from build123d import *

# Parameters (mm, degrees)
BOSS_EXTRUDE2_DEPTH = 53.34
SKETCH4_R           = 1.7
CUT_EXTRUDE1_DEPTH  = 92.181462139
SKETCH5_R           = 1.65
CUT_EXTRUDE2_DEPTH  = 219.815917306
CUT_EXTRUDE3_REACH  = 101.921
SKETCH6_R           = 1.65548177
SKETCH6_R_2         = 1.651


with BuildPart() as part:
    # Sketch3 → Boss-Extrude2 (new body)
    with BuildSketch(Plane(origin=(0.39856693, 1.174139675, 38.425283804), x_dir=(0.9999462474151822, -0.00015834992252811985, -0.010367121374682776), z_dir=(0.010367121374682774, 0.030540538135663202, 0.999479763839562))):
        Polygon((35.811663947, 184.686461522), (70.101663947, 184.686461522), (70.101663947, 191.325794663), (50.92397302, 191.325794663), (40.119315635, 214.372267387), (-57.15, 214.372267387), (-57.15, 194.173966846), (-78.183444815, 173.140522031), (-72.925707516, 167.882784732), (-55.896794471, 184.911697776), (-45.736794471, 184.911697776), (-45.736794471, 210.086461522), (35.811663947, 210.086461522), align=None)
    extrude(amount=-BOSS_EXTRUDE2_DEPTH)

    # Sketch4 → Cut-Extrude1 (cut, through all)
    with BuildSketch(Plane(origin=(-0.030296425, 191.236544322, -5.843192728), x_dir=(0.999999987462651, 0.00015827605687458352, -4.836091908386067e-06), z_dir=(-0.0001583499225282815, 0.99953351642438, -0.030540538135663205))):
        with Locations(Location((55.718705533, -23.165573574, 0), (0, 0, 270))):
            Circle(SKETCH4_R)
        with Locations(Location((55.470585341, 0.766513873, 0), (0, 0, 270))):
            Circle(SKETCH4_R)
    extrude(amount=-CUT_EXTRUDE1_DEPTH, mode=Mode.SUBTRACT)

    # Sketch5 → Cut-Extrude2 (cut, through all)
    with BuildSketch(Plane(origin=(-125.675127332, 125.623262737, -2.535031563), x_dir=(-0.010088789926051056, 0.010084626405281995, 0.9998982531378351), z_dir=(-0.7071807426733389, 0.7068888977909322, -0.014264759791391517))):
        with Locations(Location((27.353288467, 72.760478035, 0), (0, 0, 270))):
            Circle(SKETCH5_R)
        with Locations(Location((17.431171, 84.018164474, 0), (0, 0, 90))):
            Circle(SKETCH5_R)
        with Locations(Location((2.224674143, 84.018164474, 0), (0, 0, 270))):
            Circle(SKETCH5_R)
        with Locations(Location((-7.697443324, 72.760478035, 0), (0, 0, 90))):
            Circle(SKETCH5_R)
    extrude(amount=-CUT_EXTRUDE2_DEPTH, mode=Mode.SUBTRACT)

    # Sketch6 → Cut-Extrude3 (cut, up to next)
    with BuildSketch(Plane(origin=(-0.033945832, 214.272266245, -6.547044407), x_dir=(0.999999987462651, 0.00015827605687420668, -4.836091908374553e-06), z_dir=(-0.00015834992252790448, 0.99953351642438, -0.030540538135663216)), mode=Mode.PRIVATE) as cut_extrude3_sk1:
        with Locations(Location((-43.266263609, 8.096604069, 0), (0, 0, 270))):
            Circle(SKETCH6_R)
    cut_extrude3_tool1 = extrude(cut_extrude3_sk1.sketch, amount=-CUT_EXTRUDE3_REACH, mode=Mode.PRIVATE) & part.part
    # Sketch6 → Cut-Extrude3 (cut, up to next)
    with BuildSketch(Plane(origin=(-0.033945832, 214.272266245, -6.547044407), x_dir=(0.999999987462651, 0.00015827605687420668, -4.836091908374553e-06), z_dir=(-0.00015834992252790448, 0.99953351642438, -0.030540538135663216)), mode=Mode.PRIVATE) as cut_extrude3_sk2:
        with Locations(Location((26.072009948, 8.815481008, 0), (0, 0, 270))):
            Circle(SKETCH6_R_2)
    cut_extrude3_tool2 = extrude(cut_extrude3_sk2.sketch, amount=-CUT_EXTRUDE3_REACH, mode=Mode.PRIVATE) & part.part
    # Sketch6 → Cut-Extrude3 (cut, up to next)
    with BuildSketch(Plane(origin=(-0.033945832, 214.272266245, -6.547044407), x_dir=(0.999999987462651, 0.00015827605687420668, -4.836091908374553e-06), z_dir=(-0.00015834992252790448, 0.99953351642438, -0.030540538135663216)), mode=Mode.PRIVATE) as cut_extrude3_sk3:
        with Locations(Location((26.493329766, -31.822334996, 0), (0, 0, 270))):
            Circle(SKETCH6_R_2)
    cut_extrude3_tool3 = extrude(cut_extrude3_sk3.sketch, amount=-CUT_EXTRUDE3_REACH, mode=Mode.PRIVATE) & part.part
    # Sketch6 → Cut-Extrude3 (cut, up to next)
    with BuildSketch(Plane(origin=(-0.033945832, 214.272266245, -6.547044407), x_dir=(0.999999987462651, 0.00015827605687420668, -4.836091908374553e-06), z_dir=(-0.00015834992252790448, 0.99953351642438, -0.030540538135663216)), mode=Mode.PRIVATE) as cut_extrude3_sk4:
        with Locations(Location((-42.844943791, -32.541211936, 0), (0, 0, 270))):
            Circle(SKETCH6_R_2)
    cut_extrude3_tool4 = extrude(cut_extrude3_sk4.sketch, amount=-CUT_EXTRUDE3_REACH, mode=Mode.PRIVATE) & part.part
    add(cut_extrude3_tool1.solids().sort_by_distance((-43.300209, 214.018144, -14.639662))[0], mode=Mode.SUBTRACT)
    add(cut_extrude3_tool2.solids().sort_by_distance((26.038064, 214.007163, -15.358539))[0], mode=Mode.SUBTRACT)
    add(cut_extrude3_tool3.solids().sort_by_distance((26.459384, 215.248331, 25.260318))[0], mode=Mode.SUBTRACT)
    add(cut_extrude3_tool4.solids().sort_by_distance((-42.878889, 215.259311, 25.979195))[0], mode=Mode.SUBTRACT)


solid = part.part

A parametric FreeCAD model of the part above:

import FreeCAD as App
import Part
import Sketcher
from FreeCAD import Vector
Q = App.Units.Quantity


def add_polygon(sketch, points):
    """Adds a closed chain of lines whose ends are joined by coincident constraints."""
    first, n = sketch.GeometryCount, len(points)
    for a, b in zip(points, points[1:] + points[:1]):
        sketch.addGeometry(Part.LineSegment(App.Vector(*a, 0), App.Vector(*b, 0)), False)
    for i in range(n):
        sketch.addConstraint(Sketcher.Constraint("Coincident", first + i, 2, first + (i + 1) % n, 1))

doc = App.newDocument("Part")
params = doc.addObject("Spreadsheet::Sheet", "Params")
for row, (alias, value) in enumerate([
    ("sketch1_height", "1 in"),
    ("sketch1_width", "0.4 in"),
    ("sketch1_width2", "1.35 in"),
    ("pad1_length", "2.1 in"),
    ("sketch5_diameter", "0.13 in"),
    ("sketch6_diameter", "0.13 in"),
    ("sketch7_diameter", "0.13 in"),
], start=1):
    params.set(f"A{row}", alias)
    params.set(f"B{row}", "=" + value)
    params.setAlias(f"B{row}", alias)

body = doc.addObject("PartDesign::Body", "Body")

sketch1 = doc.addObject("Sketcher::SketchObject", "Sketch")
body.addObject(sketch1)
sketch1.Placement = App.Placement(Vector(0.398567, 1.17414, 38.425284), App.Rotation(Vector(0.999946247, -0.00015835, -0.010367121), Vector(-0.00015835, 0.999533516, -0.030540538), Vector(0.010367121, 0.030540538, 0.999479764), "ZXY"))
add_polygon(sketch1, [(36, 185), (70, 185), (70, 191), (51, 191), (40, 214), (-57, 214), (-57, 194), (-78, 173), (-73, 168), (-56, 185), (-46, 185), (-46, 210), (36, 210)])
sketch1.addConstraint([
    Sketcher.Constraint("Horizontal", 0),
    Sketcher.Constraint("Vertical", 1),
    Sketcher.Constraint("Horizontal", 2),
    Sketcher.Constraint("Horizontal", 4),
    Sketcher.Constraint("Vertical", 5),
    Sketcher.Constraint("Horizontal", 9),
    Sketcher.Constraint("Vertical", 10),
    Sketcher.Constraint("Horizontal", 11),
    Sketcher.Constraint("Vertical", 12),
    Sketcher.Constraint("Perpendicular", 6, 7),
    Sketcher.Constraint("Perpendicular", 7, 8),
    Sketcher.Constraint("DistanceY", 12, 2, 12, 1, Q("1 in")),
    Sketcher.Constraint("DistanceX", 9, 1, 9, 2, Q("0.4 in")),
    Sketcher.Constraint("Angle", 6, Q("-135 deg")),
    Sketcher.Constraint("DistanceX", 0, 1, 0, 2, Q("1.35 in")),
    Sketcher.Constraint("DistanceX", 4, 2, -1, 1, Q("2.25 in")),
    Sketcher.Constraint("DistanceY", 5, 2, 5, 1, 20.198301),
    Sketcher.Constraint("DistanceX", 2, 2, 2, 1, 19.177691),
    Sketcher.Constraint("DistanceX", 11, 1, 11, 2, 81.548458),
    Sketcher.Constraint("Distance", 8, 24.08252),
    Sketcher.Constraint("DistanceX", 4, 2, 4, 1, 97.269316),
    Sketcher.Constraint("DistanceY", 1, 1, 1, 2, 6.639333),
    Sketcher.Constraint("DistanceY", 10, 1, 10, 2, 25.174764),
    Sketcher.Constraint("DistanceY", -1, 1, 0, 2, 184.686461),
    Sketcher.Constraint("DistanceY", -1, 1, 6, 2, 173.140522),
    Sketcher.Constraint("DistanceX", 3, 2, 1, 2, 29.982348),
])
sketch1.setExpression("Constraints[24]", "Params.sketch1_height")
sketch1.setExpression("Constraints[25]", "Params.sketch1_width")
sketch1.setExpression("Constraints[27]", "Params.sketch1_width2")
pad1 = doc.addObject("PartDesign::Pad", "Pad")
body.addObject(pad1)
pad1.Profile = sketch1
pad1.setExpression("Length", "Params.pad1_length")
pad1.Reversed = True

sketch2 = doc.addObject("Sketcher::SketchObject", "Sketch001")
body.addObject(sketch2)
sketch2.Placement = App.Placement(Vector(-0.030296, 191.236544, -5.843193), App.Rotation(Vector(0.999999987, 0.000158276, -0.000004836), Vector(0, -0.030540538, -0.999533528), Vector(-0.00015835, 0.999533516, -0.030540538), "ZXY"))
sketch2.addGeometry([
    Part.Circle(Vector(55.7, -23.2, 0), Vector(0, 0, 1), 1.7),
    Part.Circle(Vector(55.5, 0.8, 0), Vector(0, 0, 1), 1.7),
], False)
sketch2.addConstraint([
    Sketcher.Constraint("Equal", 0, 1),
    Sketcher.Constraint("Diameter", 0, 3.4),
    Sketcher.Constraint("DistanceX", 1, 3, 0, 3, 0.24812),
    Sketcher.Constraint("DistanceX", -1, 1, 0, 3, 55.718705),
    Sketcher.Constraint("DistanceY", 0, 3, -1, 1, 23.165574),
    Sketcher.Constraint("DistanceY", -1, 1, 1, 3, 0.766514),
])
pocket1 = doc.addObject("PartDesign::Pocket", "Pocket")
body.addObject(pocket1)
pocket1.Profile = sketch2
pocket1.Type = "ThroughAll"

sketch3 = doc.addObject("Sketcher::SketchObject", "Sketch002")
body.addObject(sketch3)
sketch3.Placement = App.Placement(Vector(-125.675127, 125.623263, -2.535032), App.Rotation(Vector(-0.01008879, 0.010084626, 0.999898253), Vector(0.706960829, 0.707252704, 0), Vector(-0.707180743, 0.706888898, -0.01426476), "ZXY"))
sketch3.addGeometry([
    Part.Circle(Vector(27.4, 72.8, 0), Vector(0, 0, 1), 1.6),
    Part.Circle(Vector(17.4, 84, 0), Vector(0, 0, 1), 1.6),
    Part.Circle(Vector(2.2, 84, 0), Vector(0, 0, 1), 1.6),
    Part.Circle(Vector(-7.7, 72.8, 0), Vector(0, 0, 1), 1.6),
], False)
sketch3.addConstraint([
    Sketcher.Constraint("Equal", 0, 1),
    Sketcher.Constraint("Equal", 1, 2),
    Sketcher.Constraint("Equal", 2, 3),
    Sketcher.Constraint("Horizontal", 1, 3, 2, 3),
    Sketcher.Constraint("Horizontal", 0, 3, 3, 3),
    Sketcher.Constraint("Diameter", 0, 3.3),
    Sketcher.Constraint("DistanceX", -1, 1, 0, 3, 27.353288),
    Sketcher.Constraint("DistanceY", -1, 1, 0, 3, 72.760478),
    Sketcher.Constraint("DistanceX", -1, 1, 1, 3, 17.431171),
    Sketcher.Constraint("DistanceX", 3, 3, 0, 3, 35.050732),
    Sketcher.Constraint("DistanceY", -1, 1, 1, 3, 84.018165),
    Sketcher.Constraint("DistanceX", -1, 1, 2, 3, 2.224674),
])
pocket2 = doc.addObject("PartDesign::Pocket", "Pocket001")
body.addObject(pocket2)
pocket2.Profile = sketch3
pocket2.Type = "ThroughAll"

sketch4 = doc.addObject("Sketcher::SketchObject", "Sketch003")
body.addObject(sketch4)
sketch4.Placement = App.Placement(Vector(-0.033946, 214.272266, -6.547044), App.Rotation(Vector(0.999999987, 0.000158276, -0.000004836), Vector(0, -0.030540538, -0.999533528), Vector(-0.00015835, 0.999533516, -0.030540538), "ZXY"))
sketch4.addGeometry(Part.Circle(Vector(-43.3, 8.1, 0), Vector(0, 0, 1), 1.7), False)
sketch4.addConstraint([
    Sketcher.Constraint("Diameter", 0, 3.310964),
    Sketcher.Constraint("DistanceX", 0, 3, -1, 1, 43.266264),
    Sketcher.Constraint("DistanceY", -1, 1, 0, 3, 8.096604),
])
pocket3 = doc.addObject("PartDesign::Pocket", "Pocket002")
body.addObject(pocket3)
pocket3.Profile = sketch4
pocket3.Type = "UpToFirst"

sketch5 = doc.addObject("Sketcher::SketchObject", "Sketch004")
body.addObject(sketch5)
sketch5.Placement = App.Placement(Vector(-0.033946, 214.272266, -6.547044), App.Rotation(Vector(0.999999987, 0.000158276, -0.000004836), Vector(0, -0.030540538, -0.999533528), Vector(-0.00015835, 0.999533516, -0.030540538), "ZXY"))
sketch5.addGeometry(Part.Circle(Vector(26.1, 8.8, 0), Vector(0, 0, 1), 1.7), False)
sketch5.addConstraint([
    Sketcher.Constraint("Diameter", 0, Q("0.13 in")),
    Sketcher.Constraint("DistanceX", -1, 1, 0, 3, 26.07201),
    Sketcher.Constraint("DistanceY", -1, 1, 0, 3, 8.815481),
])
sketch5.setExpression("Constraints[0]", "Params.sketch5_diameter")
pocket4 = doc.addObject("PartDesign::Pocket", "Pocket003")
body.addObject(pocket4)
pocket4.Profile = sketch5
pocket4.Type = "UpToFirst"

sketch6 = doc.addObject("Sketcher::SketchObject", "Sketch005")
body.addObject(sketch6)
sketch6.Placement = App.Placement(Vector(-0.033946, 214.272266, -6.547044), App.Rotation(Vector(0.999999987, 0.000158276, -0.000004836), Vector(0, -0.030540538, -0.999533528), Vector(-0.00015835, 0.999533516, -0.030540538), "ZXY"))
sketch6.addGeometry(Part.Circle(Vector(26.5, -31.8, 0), Vector(0, 0, 1), 1.7), False)
sketch6.addConstraint([
    Sketcher.Constraint("Diameter", 0, Q("0.13 in")),
    Sketcher.Constraint("DistanceX", -1, 1, 0, 3, 26.49333),
    Sketcher.Constraint("DistanceY", 0, 3, -1, 1, 31.822335),
])
sketch6.setExpression("Constraints[0]", "Params.sketch6_diameter")
pocket5 = doc.addObject("PartDesign::Pocket", "Pocket004")
body.addObject(pocket5)
pocket5.Profile = sketch6
pocket5.Type = "UpToFirst"

sketch7 = doc.addObject("Sketcher::SketchObject", "Sketch006")
body.addObject(sketch7)
sketch7.Placement = App.Placement(Vector(-0.033946, 214.272266, -6.547044), App.Rotation(Vector(0.999999987, 0.000158276, -0.000004836), Vector(0, -0.030540538, -0.999533528), Vector(-0.00015835, 0.999533516, -0.030540538), "ZXY"))
sketch7.addGeometry(Part.Circle(Vector(-42.8, -32.5, 0), Vector(0, 0, 1), 1.7), False)
sketch7.addConstraint([
    Sketcher.Constraint("Diameter", 0, Q("0.13 in")),
    Sketcher.Constraint("DistanceY", 0, 3, -1, 1, 32.541212),
    Sketcher.Constraint("DistanceX", 0, 3, -1, 1, 42.844944),
])
sketch7.setExpression("Constraints[0]", "Params.sketch7_diameter")
pocket6 = doc.addObject("PartDesign::Pocket", "Pocket005")
body.addObject(pocket6)
pocket6.Profile = sketch7
pocket6.Type = "UpToFirst"

doc.recompute()
